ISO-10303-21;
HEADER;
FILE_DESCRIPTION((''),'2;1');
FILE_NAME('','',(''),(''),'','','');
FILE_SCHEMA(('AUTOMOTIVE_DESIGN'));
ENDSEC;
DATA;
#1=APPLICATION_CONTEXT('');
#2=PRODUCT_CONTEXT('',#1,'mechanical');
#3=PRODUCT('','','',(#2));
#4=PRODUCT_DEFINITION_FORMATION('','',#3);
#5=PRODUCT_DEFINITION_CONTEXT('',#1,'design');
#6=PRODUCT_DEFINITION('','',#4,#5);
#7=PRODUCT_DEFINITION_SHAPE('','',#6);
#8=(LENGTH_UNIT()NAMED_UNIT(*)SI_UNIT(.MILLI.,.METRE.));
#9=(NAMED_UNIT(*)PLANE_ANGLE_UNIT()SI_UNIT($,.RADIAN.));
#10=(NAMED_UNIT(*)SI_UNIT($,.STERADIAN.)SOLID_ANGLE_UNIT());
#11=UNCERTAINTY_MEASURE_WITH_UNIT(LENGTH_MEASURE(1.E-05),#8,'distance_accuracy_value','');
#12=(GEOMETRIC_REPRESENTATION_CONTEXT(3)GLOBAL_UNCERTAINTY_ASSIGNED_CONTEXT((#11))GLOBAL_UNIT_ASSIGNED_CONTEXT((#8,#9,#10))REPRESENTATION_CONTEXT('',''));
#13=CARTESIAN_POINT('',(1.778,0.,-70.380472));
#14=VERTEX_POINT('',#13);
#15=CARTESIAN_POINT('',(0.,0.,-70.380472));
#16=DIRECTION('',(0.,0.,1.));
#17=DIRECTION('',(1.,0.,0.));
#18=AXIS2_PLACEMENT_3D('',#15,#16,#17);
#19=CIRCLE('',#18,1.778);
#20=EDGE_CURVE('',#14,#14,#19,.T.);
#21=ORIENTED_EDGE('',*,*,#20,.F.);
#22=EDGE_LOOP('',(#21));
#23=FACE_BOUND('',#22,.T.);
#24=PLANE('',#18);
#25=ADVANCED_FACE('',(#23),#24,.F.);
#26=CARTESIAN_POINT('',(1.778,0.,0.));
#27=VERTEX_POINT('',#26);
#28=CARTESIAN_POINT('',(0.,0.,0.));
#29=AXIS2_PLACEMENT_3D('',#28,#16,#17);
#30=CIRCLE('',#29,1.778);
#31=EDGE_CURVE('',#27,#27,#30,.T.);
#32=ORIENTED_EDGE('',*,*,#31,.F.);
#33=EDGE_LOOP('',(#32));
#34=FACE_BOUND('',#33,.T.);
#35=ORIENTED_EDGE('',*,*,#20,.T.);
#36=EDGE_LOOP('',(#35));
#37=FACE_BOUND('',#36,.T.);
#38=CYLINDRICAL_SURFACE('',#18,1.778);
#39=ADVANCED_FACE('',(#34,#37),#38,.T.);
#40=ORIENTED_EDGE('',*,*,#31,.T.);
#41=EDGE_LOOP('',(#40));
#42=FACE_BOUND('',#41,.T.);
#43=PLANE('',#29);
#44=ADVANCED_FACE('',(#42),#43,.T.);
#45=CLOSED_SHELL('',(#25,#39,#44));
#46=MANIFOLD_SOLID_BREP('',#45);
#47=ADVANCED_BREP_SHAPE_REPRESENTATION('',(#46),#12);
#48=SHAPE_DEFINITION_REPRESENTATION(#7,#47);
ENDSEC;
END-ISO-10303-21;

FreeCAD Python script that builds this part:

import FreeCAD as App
import Part
import Sketcher
from FreeCAD import Vector
Q = App.Units.Quantity

doc = App.newDocument("Part")
params = doc.addObject("Spreadsheet::Sheet", "Params")
for row, (alias, value) in enumerate([
    ("sketch1_diameter", "0.14 in"),
    ("pad1_length", "70.380472 mm"),
], start=1):
    params.set(f"A{row}", alias)
    params.set(f"B{row}", "=" + value)
    params.setAlias(f"B{row}", alias)

body = doc.addObject("PartDesign::Body", "Body")

# Sketch on XY plane
sketch1 = body.newObject("Sketcher::SketchObject", "Sketch")
sketch1.AttachmentSupport = (doc.getObject("XY_Plane"), [""])
sketch1.MapMode = "FlatFace"
sketch1.addGeometry(Part.Circle(Vector(0, 0, 0), Vector(0, 0, 1), 1.778), False)
sketch1.addConstraint(Sketcher.Constraint("Coincident", 0, 3, -1, 1))
sketch1.addConstraint(Sketcher.Constraint("Diameter", 0, Q("0.14 in")))
sketch1.setExpression("Constraints[1]", "Params.sketch1_diameter")
pad1 = body.newObject("PartDesign::Pad", "Pad")
pad1.Profile = sketch1
pad1.setExpression("Length", "Params.pad1_length")
pad1.Reversed = True

doc.recompute()
